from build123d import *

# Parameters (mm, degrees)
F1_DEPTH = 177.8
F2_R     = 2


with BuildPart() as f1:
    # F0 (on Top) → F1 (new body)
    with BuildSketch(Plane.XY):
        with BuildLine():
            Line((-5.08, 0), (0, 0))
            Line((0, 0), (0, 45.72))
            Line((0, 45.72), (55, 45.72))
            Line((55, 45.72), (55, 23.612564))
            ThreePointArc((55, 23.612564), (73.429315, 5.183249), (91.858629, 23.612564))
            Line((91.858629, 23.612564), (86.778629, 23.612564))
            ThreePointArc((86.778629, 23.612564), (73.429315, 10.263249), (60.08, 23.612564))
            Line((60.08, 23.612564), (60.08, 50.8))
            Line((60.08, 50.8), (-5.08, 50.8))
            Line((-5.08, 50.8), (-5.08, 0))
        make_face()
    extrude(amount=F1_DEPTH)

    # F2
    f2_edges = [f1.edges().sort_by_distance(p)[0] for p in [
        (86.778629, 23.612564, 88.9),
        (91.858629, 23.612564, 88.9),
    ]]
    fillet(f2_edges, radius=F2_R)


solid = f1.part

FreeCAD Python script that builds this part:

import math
import FreeCAD as App
import Part
import Sketcher

V = App.Vector
Q = App.Units.Quantity


def edges_at(feature, points):
    """Names of the edges that pass closest to the given points."""
    edges = feature.Shape.Edges
    near = lambda p: min(range(len(edges)), key=lambda i: edges[i].distToShape(Part.Vertex(*p))[0])
    return sorted({f"Edge{near(p) + 1}" for p in points})

doc = App.newDocument("Part")
body = doc.addObject("PartDesign::Body", "Body")

# Sketch on XY plane
sketch1 = body.newObject("Sketcher::SketchObject", "Sketch")
sketch1.AttachmentSupport = (doc.getObject("XY_Plane"), [""])
sketch1.MapMode = "FlatFace"
sketch1.addGeometry(Part.LineSegment(V(-5.08, 0, 0), V(0, 0, 0)), False)
sketch1.addGeometry(Part.LineSegment(V(0, 0, 0), V(0, 45.72, 0)), False)
sketch1.addGeometry(Part.LineSegment(V(0, 45.72, 0), V(55, 45.72, 0)), False)
sketch1.addGeometry(Part.LineSegment(V(55, 45.72, 0), V(55, 23.612564, 0)), False)
sketch1.addGeometry(Part.ArcOfCircle(Part.Circle(V(73.429315, 23.612564, 0), V(0, 0, 1), 18.429315), math.radians(179.999998), math.radians(360.000002)), False)
sketch1.addGeometry(Part.LineSegment(V(91.858629, 23.612564, 0), V(86.778629, 23.612564, 0)), False)
sketch1.addGeometry(Part.ArcOfCircle(Part.Circle(V(73.429315, 23.612564, 0), V(0, 0, 1), 13.349315), math.radians(179.999998), math.radians(360.000002)), False)
sketch1.addGeometry(Part.LineSegment(V(60.08, 23.612564, 0), V(60.08, 50.8, 0)), False)
sketch1.addGeometry(Part.LineSegment(V(60.08, 50.8, 0), V(-5.08, 50.8, 0)), False)
sketch1.addGeometry(Part.LineSegment(V(-5.08, 50.8, 0), V(-5.08, 0, 0)), False)
sketch1.addConstraint(Sketcher.Constraint("Coincident", 0, 2, 1, 1))
sketch1.addConstraint(Sketcher.Constraint("Coincident", 1, 2, 2, 1))
sketch1.addConstraint(Sketcher.Constraint("Coincident", 2, 2, 3, 1))
sketch1.addConstraint(Sketcher.Constraint("Tangent", 3, 2, 4, 1))
sketch1.addConstraint(Sketcher.Constraint("Coincident", 4, 2, 5, 1))
sketch1.addConstraint(Sketcher.Constraint("Coincident", 5, 2, 6, 2))
sketch1.addConstraint(Sketcher.Constraint("Tangent", 6, 1, 7, 1))
sketch1.addConstraint(Sketcher.Constraint("Coincident", 7, 2, 8, 1))
sketch1.addConstraint(Sketcher.Constraint("Coincident", 8, 2, 9, 1))
sketch1.addConstraint(Sketcher.Constraint("Coincident", 9, 2, 0, 1))
sketch1.addConstraint(Sketcher.Constraint("Horizontal", 0))
sketch1.addConstraint(Sketcher.Constraint("Vertical", 1))
sketch1.addConstraint(Sketcher.Constraint("Horizontal", 2))
sketch1.addConstraint(Sketcher.Constraint("Vertical", 3))
sketch1.addConstraint(Sketcher.Constraint("Horizontal", 5))
sketch1.addConstraint(Sketcher.Constraint("Vertical", 7))
sketch1.addConstraint(Sketcher.Constraint("Horizontal", 8))
sketch1.addConstraint(Sketcher.Constraint("Vertical", 9))
sketch1.addConstraint(Sketcher.Constraint("Coincident", 0, 2, -1, 1))
sketch1.addConstraint(Sketcher.Constraint("Coincident", 6, 3, 4, 3))
sketch1.addConstraint(Sketcher.Constraint("Horizontal", 3, 2, 4, 2))
sketch1.addConstraint(Sketcher.Constraint("Equal", 0, 5))
sketch1.addConstraint(Sketcher.Constraint("DistanceY", 9, 2, 9, 1, Q("2 in")))
sketch1.addConstraint(Sketcher.Constraint("DistanceX", 0, 1, 0, 2, Q("0.2 in")))
sketch1.addConstraint(Sketcher.Constraint("DistanceY", 1, 1, 1, 2, Q("1.8 in")))
sketch1.addConstraint(Sketcher.Constraint("DistanceX", 2, 1, 2, 2, Q("55 mm")))
sketch1.addConstraint(Sketcher.Constraint("Radius", 4, Q("18.429315 mm")))
sketch1.addConstraint(Sketcher.Constraint("DistanceY", 3, 2, 3, 1, Q("22.107436 mm")))
pad1 = body.newObject("PartDesign::Pad", "Pad")
pad1.Profile = sketch1
pad1.Length = Q("7 in")
doc.recompute()

fillet = body.newObject("PartDesign::Fillet", "Fillet")
fillet.Base = (pad1, edges_at(pad1, [(86.779, 23.613, 88.9), (91.859, 23.613, 88.9)]))
fillet.Radius = 2

doc.recompute()
